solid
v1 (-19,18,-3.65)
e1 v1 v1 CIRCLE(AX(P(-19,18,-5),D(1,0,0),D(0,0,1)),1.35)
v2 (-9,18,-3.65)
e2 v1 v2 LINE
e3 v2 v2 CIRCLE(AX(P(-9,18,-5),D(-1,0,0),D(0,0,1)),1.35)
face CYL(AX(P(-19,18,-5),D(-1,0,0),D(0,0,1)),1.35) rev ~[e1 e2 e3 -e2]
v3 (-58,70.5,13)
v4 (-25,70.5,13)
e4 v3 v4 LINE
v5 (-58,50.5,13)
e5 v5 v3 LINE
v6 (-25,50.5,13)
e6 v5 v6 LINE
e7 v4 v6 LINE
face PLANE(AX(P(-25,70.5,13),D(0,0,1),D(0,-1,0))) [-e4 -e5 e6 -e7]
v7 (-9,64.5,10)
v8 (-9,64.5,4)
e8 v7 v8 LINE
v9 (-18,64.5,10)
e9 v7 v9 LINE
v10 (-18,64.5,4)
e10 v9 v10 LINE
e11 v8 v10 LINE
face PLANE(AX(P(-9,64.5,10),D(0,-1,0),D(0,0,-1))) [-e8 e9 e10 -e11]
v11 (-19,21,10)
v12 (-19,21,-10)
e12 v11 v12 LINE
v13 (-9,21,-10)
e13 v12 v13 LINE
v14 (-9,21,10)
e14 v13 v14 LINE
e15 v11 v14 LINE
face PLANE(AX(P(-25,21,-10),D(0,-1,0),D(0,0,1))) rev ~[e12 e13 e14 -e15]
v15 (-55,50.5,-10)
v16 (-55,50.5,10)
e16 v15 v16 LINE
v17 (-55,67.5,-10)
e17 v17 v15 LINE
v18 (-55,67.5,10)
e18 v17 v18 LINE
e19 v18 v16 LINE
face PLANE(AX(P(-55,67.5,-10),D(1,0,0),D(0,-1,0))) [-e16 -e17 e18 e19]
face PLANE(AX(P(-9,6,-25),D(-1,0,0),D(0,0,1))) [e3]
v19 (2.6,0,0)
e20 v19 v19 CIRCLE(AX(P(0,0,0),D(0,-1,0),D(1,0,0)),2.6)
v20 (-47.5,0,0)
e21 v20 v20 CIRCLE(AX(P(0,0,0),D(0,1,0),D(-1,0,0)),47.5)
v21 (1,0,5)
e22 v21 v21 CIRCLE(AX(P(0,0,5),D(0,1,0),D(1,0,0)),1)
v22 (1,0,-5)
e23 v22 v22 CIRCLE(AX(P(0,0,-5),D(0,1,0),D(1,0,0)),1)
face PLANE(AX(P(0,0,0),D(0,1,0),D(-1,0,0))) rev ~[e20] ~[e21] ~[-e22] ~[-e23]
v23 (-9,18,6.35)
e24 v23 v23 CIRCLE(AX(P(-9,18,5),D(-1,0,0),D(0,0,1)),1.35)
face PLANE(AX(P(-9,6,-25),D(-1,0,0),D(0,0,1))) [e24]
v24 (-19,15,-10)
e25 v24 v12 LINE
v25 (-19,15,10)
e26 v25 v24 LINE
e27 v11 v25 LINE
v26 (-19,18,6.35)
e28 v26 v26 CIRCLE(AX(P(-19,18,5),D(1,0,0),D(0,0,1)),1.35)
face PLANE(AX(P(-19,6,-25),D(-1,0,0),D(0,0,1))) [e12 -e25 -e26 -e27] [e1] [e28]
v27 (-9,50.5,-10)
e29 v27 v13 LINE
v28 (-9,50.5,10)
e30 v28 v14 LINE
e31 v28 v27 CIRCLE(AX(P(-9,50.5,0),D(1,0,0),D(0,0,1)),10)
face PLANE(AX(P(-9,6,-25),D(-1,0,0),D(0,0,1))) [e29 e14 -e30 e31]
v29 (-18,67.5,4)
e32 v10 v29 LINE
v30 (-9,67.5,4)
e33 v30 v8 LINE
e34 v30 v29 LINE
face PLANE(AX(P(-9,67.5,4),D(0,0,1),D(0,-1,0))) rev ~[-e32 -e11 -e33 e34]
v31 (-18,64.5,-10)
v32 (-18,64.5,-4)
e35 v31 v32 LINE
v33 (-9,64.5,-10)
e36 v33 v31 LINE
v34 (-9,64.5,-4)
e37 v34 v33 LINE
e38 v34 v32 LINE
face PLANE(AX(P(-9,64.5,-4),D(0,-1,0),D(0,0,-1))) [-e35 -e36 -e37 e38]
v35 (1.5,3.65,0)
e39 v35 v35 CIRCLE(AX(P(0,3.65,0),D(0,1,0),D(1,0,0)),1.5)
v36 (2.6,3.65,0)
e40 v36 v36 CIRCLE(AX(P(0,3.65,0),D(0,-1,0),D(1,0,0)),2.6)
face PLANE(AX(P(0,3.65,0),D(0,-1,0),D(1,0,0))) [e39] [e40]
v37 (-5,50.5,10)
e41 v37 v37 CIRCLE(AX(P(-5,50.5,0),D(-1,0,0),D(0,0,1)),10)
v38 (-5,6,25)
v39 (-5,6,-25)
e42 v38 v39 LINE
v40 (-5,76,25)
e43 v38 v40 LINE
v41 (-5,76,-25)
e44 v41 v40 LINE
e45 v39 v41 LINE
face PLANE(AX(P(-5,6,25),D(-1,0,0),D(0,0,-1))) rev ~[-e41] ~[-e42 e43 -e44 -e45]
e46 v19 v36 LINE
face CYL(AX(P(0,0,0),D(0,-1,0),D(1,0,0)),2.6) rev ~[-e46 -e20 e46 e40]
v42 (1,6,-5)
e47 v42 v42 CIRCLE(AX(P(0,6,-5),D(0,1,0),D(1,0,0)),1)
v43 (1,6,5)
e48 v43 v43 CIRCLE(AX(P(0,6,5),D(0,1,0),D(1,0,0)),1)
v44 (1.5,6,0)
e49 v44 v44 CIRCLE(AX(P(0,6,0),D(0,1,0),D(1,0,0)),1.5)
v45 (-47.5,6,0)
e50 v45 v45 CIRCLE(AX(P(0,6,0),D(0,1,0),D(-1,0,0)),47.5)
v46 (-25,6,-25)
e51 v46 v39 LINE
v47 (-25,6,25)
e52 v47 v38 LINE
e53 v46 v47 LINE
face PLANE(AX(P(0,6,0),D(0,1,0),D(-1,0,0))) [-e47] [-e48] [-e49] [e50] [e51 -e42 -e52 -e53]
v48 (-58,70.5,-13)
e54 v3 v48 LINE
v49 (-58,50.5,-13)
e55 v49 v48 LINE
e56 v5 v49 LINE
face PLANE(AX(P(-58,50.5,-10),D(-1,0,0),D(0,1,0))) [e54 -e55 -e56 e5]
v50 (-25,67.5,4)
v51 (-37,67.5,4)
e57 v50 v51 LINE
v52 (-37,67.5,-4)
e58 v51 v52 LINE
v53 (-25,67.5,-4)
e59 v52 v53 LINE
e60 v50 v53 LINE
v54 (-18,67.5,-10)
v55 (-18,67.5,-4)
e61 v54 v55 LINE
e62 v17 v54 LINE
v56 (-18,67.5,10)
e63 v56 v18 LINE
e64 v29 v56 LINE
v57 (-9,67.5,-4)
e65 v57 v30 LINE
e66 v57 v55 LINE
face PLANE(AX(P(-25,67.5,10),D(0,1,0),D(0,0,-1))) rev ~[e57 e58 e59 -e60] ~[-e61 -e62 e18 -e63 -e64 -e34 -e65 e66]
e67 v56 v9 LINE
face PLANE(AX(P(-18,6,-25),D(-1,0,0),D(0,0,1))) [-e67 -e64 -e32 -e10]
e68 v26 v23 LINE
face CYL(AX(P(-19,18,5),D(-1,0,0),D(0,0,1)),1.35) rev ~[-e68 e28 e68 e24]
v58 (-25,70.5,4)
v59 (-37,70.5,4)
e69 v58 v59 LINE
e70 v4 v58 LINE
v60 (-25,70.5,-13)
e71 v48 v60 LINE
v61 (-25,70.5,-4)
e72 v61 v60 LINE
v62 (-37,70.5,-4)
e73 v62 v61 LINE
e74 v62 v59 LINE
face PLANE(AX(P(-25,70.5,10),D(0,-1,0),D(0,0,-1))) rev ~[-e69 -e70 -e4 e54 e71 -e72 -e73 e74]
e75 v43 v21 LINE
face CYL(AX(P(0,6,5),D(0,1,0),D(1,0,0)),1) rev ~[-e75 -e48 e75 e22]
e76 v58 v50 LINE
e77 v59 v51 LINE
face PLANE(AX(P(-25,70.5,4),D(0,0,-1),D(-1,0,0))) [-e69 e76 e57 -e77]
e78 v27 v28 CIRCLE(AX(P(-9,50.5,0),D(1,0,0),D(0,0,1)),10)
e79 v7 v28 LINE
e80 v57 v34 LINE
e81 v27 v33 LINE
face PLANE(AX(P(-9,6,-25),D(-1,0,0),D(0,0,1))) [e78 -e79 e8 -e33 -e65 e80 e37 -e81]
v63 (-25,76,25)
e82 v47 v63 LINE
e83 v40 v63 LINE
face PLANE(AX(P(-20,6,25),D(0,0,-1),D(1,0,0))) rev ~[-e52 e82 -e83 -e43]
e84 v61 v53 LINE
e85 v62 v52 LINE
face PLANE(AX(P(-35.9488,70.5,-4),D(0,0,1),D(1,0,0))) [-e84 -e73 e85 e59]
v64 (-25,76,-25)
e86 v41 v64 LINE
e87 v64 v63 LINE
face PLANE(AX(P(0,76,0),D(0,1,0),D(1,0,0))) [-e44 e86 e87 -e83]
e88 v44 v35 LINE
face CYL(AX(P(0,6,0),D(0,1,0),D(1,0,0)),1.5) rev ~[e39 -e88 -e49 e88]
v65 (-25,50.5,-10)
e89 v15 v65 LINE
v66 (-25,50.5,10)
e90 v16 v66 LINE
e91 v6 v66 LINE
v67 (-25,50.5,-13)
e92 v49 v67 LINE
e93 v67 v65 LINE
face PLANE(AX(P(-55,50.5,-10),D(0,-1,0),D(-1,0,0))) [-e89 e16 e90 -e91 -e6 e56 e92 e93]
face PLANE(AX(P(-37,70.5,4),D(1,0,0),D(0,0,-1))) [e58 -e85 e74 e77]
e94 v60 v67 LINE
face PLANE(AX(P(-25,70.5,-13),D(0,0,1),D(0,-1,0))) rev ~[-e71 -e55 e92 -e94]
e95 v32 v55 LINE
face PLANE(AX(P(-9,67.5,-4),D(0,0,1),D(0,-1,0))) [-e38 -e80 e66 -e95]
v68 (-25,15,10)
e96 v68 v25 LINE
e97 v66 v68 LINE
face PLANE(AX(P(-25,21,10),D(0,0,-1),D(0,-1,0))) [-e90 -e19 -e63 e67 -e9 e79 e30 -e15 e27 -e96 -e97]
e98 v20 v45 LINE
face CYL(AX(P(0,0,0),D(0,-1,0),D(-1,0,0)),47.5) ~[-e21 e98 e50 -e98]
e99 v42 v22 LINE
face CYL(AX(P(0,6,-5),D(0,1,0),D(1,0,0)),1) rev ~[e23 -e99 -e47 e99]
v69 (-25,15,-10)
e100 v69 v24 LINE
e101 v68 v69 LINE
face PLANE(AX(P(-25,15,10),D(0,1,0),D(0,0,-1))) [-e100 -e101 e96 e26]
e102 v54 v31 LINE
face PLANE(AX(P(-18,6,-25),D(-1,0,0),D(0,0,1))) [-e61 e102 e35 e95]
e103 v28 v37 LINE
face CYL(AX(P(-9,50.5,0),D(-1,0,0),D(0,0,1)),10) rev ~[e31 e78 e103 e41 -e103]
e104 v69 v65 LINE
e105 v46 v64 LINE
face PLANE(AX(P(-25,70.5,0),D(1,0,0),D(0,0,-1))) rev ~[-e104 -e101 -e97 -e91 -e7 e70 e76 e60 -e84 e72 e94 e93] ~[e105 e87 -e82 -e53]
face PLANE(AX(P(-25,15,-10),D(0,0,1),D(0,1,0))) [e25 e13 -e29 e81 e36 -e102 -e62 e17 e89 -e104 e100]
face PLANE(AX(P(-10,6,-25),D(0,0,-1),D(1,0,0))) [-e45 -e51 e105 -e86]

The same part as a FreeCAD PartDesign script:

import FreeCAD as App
import Part
import Sketcher

V = App.Vector
Q = App.Units.Quantity


def add_polygon(sketch, points):
    """Adds a closed chain of lines whose ends are joined by coincident constraints."""
    first, n = sketch.GeometryCount, len(points)
    for a, b in zip(points, points[1:] + points[:1]):
        sketch.addGeometry(Part.LineSegment(App.Vector(*a, 0), App.Vector(*b, 0)), False)
    for i in range(n):
        sketch.addConstraint(Sketcher.Constraint("Coincident", first + i, 2, first + (i + 1) % n, 1))

doc = App.newDocument("Part")
params = doc.addObject("Spreadsheet::Sheet", "Params")
for row, (alias, value) in enumerate([
    ("sketch1_diameter", "95 mm"),
    ("pad1_length", "6 mm"),
    ("sketch2_diameter", "2 mm"),
    ("pocket1_length", "23.4625 mm"),
    ("sketch3_width", "20 mm"),
    ("sketch3_height", "50 mm"),
    ("pad2_length", "70 mm"),
    ("sketch4_height", "20 mm"),
    ("sketch4_width", "40.5 mm"),
    ("pocket2_length", "16 mm"),
    ("sketch5_width", "6 mm"),
    ("sketch5_height", "20 mm"),
    ("pocket3_length", "6 mm"),
    ("sketch6_diameter", "2.7 mm"),
    ("pocket4_length", "10 mm"),
    ("sketch7_diameter", "20 mm"),
    ("pocket5_length", "15.4 mm"),
    ("sketch8_diameter", "3 mm"),
    ("pocket6_length", "15.4 mm"),
    ("sketch9_diameter", "5.2 mm"),
    ("pocket7_length", "3.65 mm"),
    ("sketch10_width", "6 mm"),
    ("sketch10_height", "20 mm"),
    ("pocket8_length", "10 mm"),
    ("sketch11_width", "3 mm"),
    ("sketch11_height", "6 mm"),
    ("pad3_length", "12 mm"),
    ("sketch12_width", "20 mm"),
    ("sketch12_height", "3 mm"),
    ("pad4_length", "30 mm"),
    ("sketch13_height", "3 mm"),
    ("sketch13_width", "17 mm"),
    ("pad5_length", "3 mm"),
    ("sketch14_width", "3 mm"),
    ("sketch14_height", "17 mm"),
    ("pad6_length", "20 mm"),
    ("sketch15_width", "12 mm"),
    ("pocket9_length", "4 mm"),
    ("sketch16_width", "3 mm"),
    ("sketch16_height", "6 mm"),
    ("pocket10_length", "3 mm"),
], start=1):
    params.set(f"A{row}", alias)
    params.set(f"B{row}", "=" + value)
    params.setAlias(f"B{row}", alias)

body = doc.addObject("PartDesign::Body", "Body")

sketch1 = doc.addObject("Sketcher::SketchObject", "Sketch")
body.addObject(sketch1)
sketch1.AttachmentSupport = (doc.XZ_Plane, [""])
sketch1.MapMode = "FlatFace"
sketch1.addGeometry(Part.Circle(V(0, 0, 0), V(0, 0, 1), 48), False)
sketch1.addConstraint([
    Sketcher.Constraint("Coincident", 0, 3, -1, 1),
    Sketcher.Constraint("Diameter", 0, Q("95 mm")),
])
sketch1.setExpression("Constraints[1]", "Params.sketch1_diameter")
pad1 = doc.addObject("PartDesign::Pad", "Pad")
body.addObject(pad1)
pad1.Profile = sketch1
pad1.setExpression("Length", "Params.pad1_length")
pad1.Reversed = True

sketch2 = doc.addObject("Sketcher::SketchObject", "Sketch001")
body.addObject(sketch2)
sketch2.AttachmentSupport = (doc.XZ_Plane, [""])
sketch2.MapMode = "FlatFace"
sketch2.AttachmentOffset = App.Placement(V(0, 0, -6), App.Rotation())
sketch2.addGeometry([
    Part.Circle(V(0, -5, 0), V(0, 0, 1), 1),
    Part.Circle(V(0, 5, 0), V(0, 0, 1), 1),
], False)
sketch2.addConstraint([
    Sketcher.Constraint("Equal", 0, 1),
    Sketcher.Constraint("Symmetric", 0, 3, 1, 3, -1, 1),
    Sketcher.Constraint("PointOnObject", 0, 3, -2),
    Sketcher.Constraint("Diameter", 0, Q("2 mm")),
    Sketcher.Constraint("DistanceY", 0, 3, -1, 1, Q("5 mm")),
])
sketch2.setExpression("Constraints[3]", "Params.sketch2_diameter")
pocket1 = doc.addObject("PartDesign::Pocket", "Pocket")
body.addObject(pocket1)
pocket1.Profile = sketch2
pocket1.setExpression("Length", "Params.pocket1_length")
pocket1.Reversed = True

sketch3 = doc.addObject("Sketcher::SketchObject", "Sketch002")
body.addObject(sketch3)
sketch3.AttachmentSupport = (doc.XZ_Plane, [""])
sketch3.MapMode = "FlatFace"
sketch3.AttachmentOffset = App.Placement(V(0, 0, -6), App.Rotation())
add_polygon(sketch3, [(-5, 25), (-5, -25), (-25, -25), (-25, 25)])
sketch3.addConstraint([
    Sketcher.Constraint("Vertical", 0),
    Sketcher.Constraint("Horizontal", 1),
    Sketcher.Constraint("Vertical", 2),
    Sketcher.Constraint("Horizontal", 3),
    Sketcher.Constraint("DistanceX", 1, 2, 1, 1, Q("20 mm")),
    Sketcher.Constraint("DistanceY", 0, 2, 0, 1, Q("50 mm")),
    Sketcher.Constraint("DistanceY", 0, 2, -1, 1, Q("25 mm")),
    Sketcher.Constraint("DistanceX", 1, 2, -1, 1, Q("25 mm")),
])
sketch3.setExpression("Constraints[8]", "Params.sketch3_width")
sketch3.setExpression("Constraints[9]", "Params.sketch3_height")
pad2 = doc.addObject("PartDesign::Pad", "Pad001")
body.addObject(pad2)
pad2.Profile = sketch3
pad2.setExpression("Length", "Params.pad2_length")
pad2.Reversed = True

sketch4 = doc.addObject("Sketcher::SketchObject", "Sketch003")
body.addObject(sketch4)
sketch4.AttachmentSupport = (doc.YZ_Plane, [""])
sketch4.MapMode = "FlatFace"
sketch4.AttachmentOffset = App.Placement(V(0, 0, -25), App.Rotation())
add_polygon(sketch4, [(21, -10), (21, 10), (62, 10), (62, -10)])
sketch4.addConstraint([
    Sketcher.Constraint("Vertical", 0),
    Sketcher.Constraint("Horizontal", 1),
    Sketcher.Constraint("Vertical", 2),
    Sketcher.Constraint("Horizontal", 3),
    Sketcher.Constraint("DistanceY", 0, 1, 0, 2, Q("20 mm")),
    Sketcher.Constraint("DistanceX", 1, 1, 1, 2, Q("40.5 mm")),
    Sketcher.Constraint("DistanceY", -1, 1, 0, 2, Q("10 mm")),
    Sketcher.Constraint("DistanceX", -1, 1, 0, 2, Q("21 mm")),
])
sketch4.setExpression("Constraints[8]", "Params.sketch4_height")
sketch4.setExpression("Constraints[9]", "Params.sketch4_width")
pocket2 = doc.addObject("PartDesign::Pocket", "Pocket001")
body.addObject(pocket2)
pocket2.Profile = sketch4
pocket2.setExpression("Length", "Params.pocket2_length")
pocket2.Reversed = True

sketch5 = doc.addObject("Sketcher::SketchObject", "Sketch004")
body.addObject(sketch5)
sketch5.AttachmentSupport = (doc.YZ_Plane, [""])
sketch5.MapMode = "FlatFace"
sketch5.AttachmentOffset = App.Placement(V(0, 0, -25), App.Rotation())
add_polygon(sketch5, [(15, 10), (21, 10), (21, -10), (15, -10)])
add_polygon(sketch5, [(68, -10), (62, -10), (62, 10), (68, 10)])
sketch5.addConstraint([
    Sketcher.Constraint("Horizontal", 0),
    Sketcher.Constraint("Vertical", 1),
    Sketcher.Constraint("Horizontal", 2),
    Sketcher.Constraint("Vertical", 3),
    Sketcher.Constraint("Horizontal", 4),
    Sketcher.Constraint("Vertical", 5),
    Sketcher.Constraint("Horizontal", 6),
    Sketcher.Constraint("Vertical", 7),
    Sketcher.Constraint("Horizontal", 2, 2, 4, 2),
    Sketcher.Constraint("Horizontal", 3, 2, 5, 2),
    Sketcher.Constraint("Equal", 2, 4),
    Sketcher.Constraint("DistanceX", 0, 1, 0, 2, Q("6 mm")),
    Sketcher.Constraint("DistanceY", 1, 2, 1, 1, Q("20 mm")),
    Sketcher.Constraint("DistanceX", -1, 1, 0, 2, Q("21 mm")),
    Sketcher.Constraint("DistanceY", -1, 1, 0, 2, Q("10 mm")),
    Sketcher.Constraint("DistanceX", -1, 1, 4, 2, Q("61.5 mm")),
])
sketch5.setExpression("Constraints[19]", "Params.sketch5_width")
sketch5.setExpression("Constraints[20]", "Params.sketch5_height")
pocket3 = doc.addObject("PartDesign::Pocket", "Pocket002")
body.addObject(pocket3)
pocket3.Profile = sketch5
pocket3.setExpression("Length", "Params.pocket3_length")
pocket3.Reversed = True

sketch6 = doc.addObject("Sketcher::SketchObject", "Sketch005")
body.addObject(sketch6)
sketch6.AttachmentSupport = (doc.YZ_Plane, [""])
sketch6.MapMode = "FlatFace"
sketch6.AttachmentOffset = App.Placement(V(0, 0, -19), App.Rotation())
sketch6.addGeometry([
    Part.Circle(V(18, 5, 0), V(0, 0, 1), 1.4),
    Part.Circle(V(18, -5, 0), V(0, 0, 1), 1.4),
    Part.Circle(V(64.5, 5, 0), V(0, 0, 1), 1.4),
    Part.Circle(V(64.5, -5, 0), V(0, 0, 1), 1.4),
], False)
sketch6.addConstraint([
    Sketcher.Constraint("Equal", 0, 1),
    Sketcher.Constraint("Equal", 1, 2),
    Sketcher.Constraint("Equal", 2, 3),
    Sketcher.Constraint("Symmetric", 0, 3, 1, 3, -1),
    Sketcher.Constraint("Symmetric", 2, 3, 3, 3, -1),
    Sketcher.Constraint("Horizontal", 0, 3, 2, 3),
    Sketcher.Constraint("Diameter", 0, Q("2.7 mm")),
    Sketcher.Constraint("DistanceY", -1, 1, 0, 3, Q("5 mm")),
    Sketcher.Constraint("DistanceX", -1, 1, 0, 3, Q("18 mm")),
    Sketcher.Constraint("DistanceX", -1, 1, 2, 3, Q("64.5 mm")),
])
sketch6.setExpression("Constraints[6]", "Params.sketch6_diameter")
pocket4 = doc.addObject("PartDesign::Pocket", "Pocket003")
body.addObject(pocket4)
pocket4.Profile = sketch6
pocket4.setExpression("Length", "Params.pocket4_length")
pocket4.Reversed = True

sketch7 = doc.addObject("Sketcher::SketchObject", "Sketch006")
body.addObject(sketch7)
sketch7.AttachmentSupport = (doc.YZ_Plane, [""])
sketch7.MapMode = "FlatFace"
sketch7.AttachmentOffset = App.Placement(V(0, 0, -9), App.Rotation())
sketch7.addGeometry(Part.Circle(V(50, 0, 0), V(0, 0, 1), 10), False)
sketch7.addConstraint([
    Sketcher.Constraint("PointOnObject", 0, 3, -1),
    Sketcher.Constraint("Diameter", 0, Q("20 mm")),
    Sketcher.Constraint("DistanceX", -1, 1, 0, 3, Q("50.5 mm")),
])
sketch7.setExpression("Constraints[1]", "Params.sketch7_diameter")
pocket5 = doc.addObject("PartDesign::Pocket", "Pocket004")
body.addObject(pocket5)
pocket5.Profile = sketch7
pocket5.setExpression("Length", "Params.pocket5_length")
pocket5.Reversed = True

sketch8 = doc.addObject("Sketcher::SketchObject", "Sketch007")
body.addObject(sketch8)
sketch8.AttachmentSupport = (doc.XZ_Plane, [""])
sketch8.MapMode = "FlatFace"
sketch8.AttachmentOffset = App.Placement(V(0, 0, -6), App.Rotation())
sketch8.addGeometry(Part.Circle(V(0, 0, 0), V(0, 0, 1), 1.5), False)
sketch8.addConstraint([
    Sketcher.Constraint("Coincident", 0, 3, -1, 1),
    Sketcher.Constraint("Diameter", 0, Q("3 mm")),
])
sketch8.setExpression("Constraints[1]", "Params.sketch8_diameter")
pocket6 = doc.addObject("PartDesign::Pocket", "Pocket005")
body.addObject(pocket6)
pocket6.Profile = sketch8
pocket6.setExpression("Length", "Params.pocket6_length")
pocket6.Reversed = True

sketch9 = doc.addObject("Sketcher::SketchObject", "Sketch008")
body.addObject(sketch9)
sketch9.AttachmentSupport = (doc.XZ_Plane, [""])
sketch9.MapMode = "FlatFace"
sketch9.addGeometry(Part.Circle(V(0, 0, 0), V(0, 0, 1), 2.6), False)
sketch9.addConstraint([
    Sketcher.Constraint("Coincident", 0, 3, -1, 1),
    Sketcher.Constraint("Diameter", 0, Q("5.2 mm")),
])
sketch9.setExpression("Constraints[1]", "Params.sketch9_diameter")
pocket7 = doc.addObject("PartDesign::Pocket", "Pocket006")
body.addObject(pocket7)
pocket7.Profile = sketch9
pocket7.setExpression("Length", "Params.pocket7_length")

sketch10 = doc.addObject("Sketcher::SketchObject", "Sketch009")
body.addObject(sketch10)
sketch10.AttachmentSupport = (doc.YZ_Plane, [""])
sketch10.MapMode = "FlatFace"
sketch10.AttachmentOffset = App.Placement(V(0, 0, -19), App.Rotation())
add_polygon(sketch10, [(68, -10), (62, -10), (62, 10), (68, 10)])
sketch10.addConstraint([
    Sketcher.Constraint("Horizontal", 0),
    Sketcher.Constraint("Vertical", 1),
    Sketcher.Constraint("Horizontal", 2),
    Sketcher.Constraint("Vertical", 3),
    Sketcher.Constraint("DistanceX", 0, 2, 0, 1, Q("6 mm")),
    Sketcher.Constraint("DistanceY", 1, 1, 1, 2, Q("20 mm")),
    Sketcher.Constraint("DistanceY", 0, 2, -1, 1, Q("10 mm")),
    Sketcher.Constraint("DistanceX", -1, 1, 0, 2, Q("61.5 mm")),
])
sketch10.setExpression("Constraints[8]", "Params.sketch10_width")
sketch10.setExpression("Constraints[9]", "Params.sketch10_height")
pocket8 = doc.addObject("PartDesign::Pocket", "Pocket007")
body.addObject(pocket8)
pocket8.Profile = sketch10
pocket8.setExpression("Length", "Params.pocket8_length")
pocket8.Reversed = True

sketch11 = doc.addObject("Sketcher::SketchObject", "Sketch010")
body.addObject(sketch11)
sketch11.AttachmentSupport = (doc.YZ_Plane, [""])
sketch11.MapMode = "FlatFace"
sketch11.AttachmentOffset = App.Placement(V(0, 0, -9), App.Rotation())
add_polygon(sketch11, [(67.5, -4), (67.5, -10), (64.5, -10), (64.5, -4)])
add_polygon(sketch11, [(67.5, 10), (67.5, 4), (64.5, 4), (64.5, 10)])
sketch11.addConstraint([
    Sketcher.Constraint("Vertical", 0),
    Sketcher.Constraint("Horizontal", 1),
    Sketcher.Constraint("Vertical", 2),
    Sketcher.Constraint("Horizontal", 3),
    Sketcher.Constraint("Vertical", 4),
    Sketcher.Constraint("Horizontal", 5),
    Sketcher.Constraint("Vertical", 6),
    Sketcher.Constraint("Horizontal", 7),
    Sketcher.Constraint("Symmetric", 3, 2, 4, 2, -1),
    Sketcher.Constraint("Symmetric", 1, 2, 6, 2, -1),
    Sketcher.Constraint("DistanceX", 1, 2, 1, 1, Q("3 mm")),
    Sketcher.Constraint("DistanceY", 0, 2, 0, 1, Q("6 mm")),
    Sketcher.Constraint("DistanceY", 0, 2, -1, 1, Q("10 mm")),
    Sketcher.Constraint("DistanceX", -1, 1, 0, 2, Q("67.5 mm")),
])
sketch11.setExpression("Constraints[18]", "Params.sketch11_width")
sketch11.setExpression("Constraints[19]", "Params.sketch11_height")
pad3 = doc.addObject("PartDesign::Pad", "Pad002")
body.addObject(pad3)
pad3.Profile = sketch11
pad3.setExpression("Length", "Params.pad3_length")
pad3.Reversed = True

sketch12 = doc.addObject("Sketcher::SketchObject", "Sketch011")
body.addObject(sketch12)
sketch12.AttachmentSupport = (doc.YZ_Plane, [""])
sketch12.MapMode = "FlatFace"
sketch12.AttachmentOffset = App.Placement(V(0, 0, -25), App.Rotation())
add_polygon(sketch12, [(70.5, -13), (50.5, -13), (50.5, -10), (67.5, -10), (67.5, 10), (50.5, 10), (50.5, 13), (70.5, 13)])
sketch12.addConstraint([
    Sketcher.Constraint("Horizontal", 0),
    Sketcher.Constraint("Vertical", 1),
    Sketcher.Constraint("Horizontal", 2),
    Sketcher.Constraint("Vertical", 3),
    Sketcher.Constraint("Horizontal", 4),
    Sketcher.Constraint("Vertical", 5),
    Sketcher.Constraint("Horizontal", 6),
    Sketcher.Constraint("Vertical", 7),
    Sketcher.Constraint("Symmetric", 1, 2, 4, 2, -1),
    Sketcher.Constraint("Equal", 6, 3),
    Sketcher.Constraint("Equal", 1, 5),
    Sketcher.Constraint("DistanceX", 0, 2, 0, 1, Q("20 mm")),
    Sketcher.Constraint("DistanceY", 1, 1, 1, 2, Q("3 mm")),
    Sketcher.Constraint("DistanceX", 3, 2, 6, 2, Q("3 mm")),
    Sketcher.Constraint("DistanceX", -1, 1, 0, 2, Q("50.5 mm")),
])
sketch12.setExpression("Constraints[19]", "Params.sketch12_width")
sketch12.setExpression("Constraints[20]", "Params.sketch12_height")
pad4 = doc.addObject("PartDesign::Pad", "Pad003")
body.addObject(pad4)
pad4.Profile = sketch12
pad4.setExpression("Length", "Params.pad4_length")
pad4.Reversed = True

sketch13 = doc.addObject("Sketcher::SketchObject", "Sketch012")
body.addObject(sketch13)
sketch13.AttachmentSupport = (doc.YZ_Plane, [""])
sketch13.MapMode = "FlatFace"
sketch13.AttachmentOffset = App.Placement(V(0, 0, -55), App.Rotation())
add_polygon(sketch13, [(50.5, -13), (50.5, -10), (67.5, -10), (67.5, 10), (50.5, 10), (50.5, 13), (70.5, 13), (70.5, -13)])
sketch13.addConstraint([
    Sketcher.Constraint("Vertical", 0),
    Sketcher.Constraint("Horizontal", 1),
    Sketcher.Constraint("Vertical", 2),
    Sketcher.Constraint("Horizontal", 3),
    Sketcher.Constraint("Vertical", 4),
    Sketcher.Constraint("Horizontal", 5),
    Sketcher.Constraint("Vertical", 6),
    Sketcher.Constraint("Horizontal", 7),
    Sketcher.Constraint("Symmetric", 0, 2, 3, 2, -1),
    Sketcher.Constraint("Equal", 7, 2),
    Sketcher.Constraint("Equal", 0, 4),
    Sketcher.Constraint("DistanceY", 0, 1, 0, 2, Q("3 mm")),
    Sketcher.Constraint("DistanceX", 2, 2, 5, 2, Q("3 mm")),
    Sketcher.Constraint("DistanceX", 1, 1, 1, 2, Q("17 mm")),
    Sketcher.Constraint("DistanceX", -1, 1, 0, 2, Q("50.5 mm")),
])
sketch13.setExpression("Constraints[19]", "Params.sketch13_height")
sketch13.setExpression("Constraints[21]", "Params.sketch13_width")
pad5 = doc.addObject("PartDesign::Pad", "Pad004")
body.addObject(pad5)
pad5.Profile = sketch13
pad5.setExpression("Length", "Params.pad5_length")
pad5.Reversed = True

sketch14 = doc.addObject("Sketcher::SketchObject", "Sketch013")
body.addObject(sketch14)
sketch14.AttachmentSupport = (doc.XY_Plane, [""])
sketch14.MapMode = "FlatFace"
sketch14.AttachmentOffset = App.Placement(V(0, 0, -10), App.Rotation())
add_polygon(sketch14, [(-55, 67.5), (-58, 67.5), (-58, 50.5), (-55, 50.5)])
sketch14.addConstraint([
    Sketcher.Constraint("Horizontal", 0),
    Sketcher.Constraint("Vertical", 1),
    Sketcher.Constraint("Horizontal", 2),
    Sketcher.Constraint("Vertical", 3),
    Sketcher.Constraint("DistanceX", 0, 2, 0, 1, Q("3 mm")),
    Sketcher.Constraint("DistanceY", 1, 2, 1, 1, Q("17 mm")),
    Sketcher.Constraint("DistanceX", 0, 2, -1, 1, Q("58 mm")),
    Sketcher.Constraint("DistanceY", -1, 1, 0, 2, Q("67.5 mm")),
])
sketch14.setExpression("Constraints[8]", "Params.sketch14_width")
sketch14.setExpression("Constraints[9]", "Params.sketch14_height")
pad6 = doc.addObject("PartDesign::Pad", "Pad005")
body.addObject(pad6)
pad6.Profile = sketch14
pad6.setExpression("Length", "Params.pad6_length")

sketch15 = doc.addObject("Sketcher::SketchObject", "Sketch014")
body.addObject(sketch15)
sketch15.AttachmentSupport = (doc.XZ_Plane, [""])
sketch15.MapMode = "FlatFace"
sketch15.AttachmentOffset = App.Placement(V(0, 0, -70.5), App.Rotation())
add_polygon(sketch15, [(-25, -4), (-37, -4), (-37, 4), (-25, 4)])
sketch15.addConstraint([
    Sketcher.Constraint("Horizontal", 0),
    Sketcher.Constraint("Vertical", 1),
    Sketcher.Constraint("Horizontal", 2),
    Sketcher.Constraint("Vertical", 3),
    Sketcher.Constraint("DistanceX", 0, 2, 0, 1, Q("12 mm")),
    Sketcher.Constraint("DistanceY", 0, 2, -1, 1, Q("4 mm")),
    Sketcher.Constraint("DistanceY", -1, 1, 1, 2, Q("4 mm")),
    Sketcher.Constraint("DistanceX", 0, 2, -1, 1, Q("37 mm")),
])
sketch15.setExpression("Constraints[8]", "Params.sketch15_width")
pocket9 = doc.addObject("PartDesign::Pocket", "Pocket008")
body.addObject(pocket9)
pocket9.Profile = sketch15
pocket9.setExpression("Length", "Params.pocket9_length")
pocket9.Reversed = True

sketch16 = doc.addObject("Sketcher::SketchObject", "Sketch015")
body.addObject(sketch16)
sketch16.AttachmentSupport = (doc.YZ_Plane, [""])
sketch16.MapMode = "FlatFace"
sketch16.AttachmentOffset = App.Placement(V(0, 0, -21), App.Rotation())
add_polygon(sketch16, [(67.5, -10), (64.5, -10), (64.5, -4), (67.5, -4)])
add_polygon(sketch16, [(67.5, 10), (67.5, 4), (64.5, 4), (64.5, 10)])
sketch16.addConstraint([
    Sketcher.Constraint("Horizontal", 0),
    Sketcher.Constraint("Vertical", 1),
    Sketcher.Constraint("Horizontal", 2),
    Sketcher.Constraint("Vertical", 3),
    Sketcher.Constraint("Vertical", 4),
    Sketcher.Constraint("Horizontal", 5),
    Sketcher.Constraint("Vertical", 6),
    Sketcher.Constraint("Horizontal", 7),
    Sketcher.Constraint("Symmetric", 2, 2, 4, 2, -1),
    Sketcher.Constraint("Symmetric", 0, 2, 6, 2, -1),
    Sketcher.Constraint("DistanceX", 0, 2, 0, 1, Q("3 mm")),
    Sketcher.Constraint("DistanceY", 1, 1, 1, 2, Q("6 mm")),
    Sketcher.Constraint("DistanceY", 0, 2, -1, 1, Q("10 mm")),
    Sketcher.Constraint("DistanceX", -1, 1, 0, 2, Q("64.5 mm")),
])
sketch16.setExpression("Constraints[18]", "Params.sketch16_width")
sketch16.setExpression("Constraints[19]", "Params.sketch16_height")
pocket10 = doc.addObject("PartDesign::Pocket", "Pocket009")
body.addObject(pocket10)
pocket10.Profile = sketch16
pocket10.setExpression("Length", "Params.pocket10_length")
pocket10.Reversed = True

doc.recompute()
